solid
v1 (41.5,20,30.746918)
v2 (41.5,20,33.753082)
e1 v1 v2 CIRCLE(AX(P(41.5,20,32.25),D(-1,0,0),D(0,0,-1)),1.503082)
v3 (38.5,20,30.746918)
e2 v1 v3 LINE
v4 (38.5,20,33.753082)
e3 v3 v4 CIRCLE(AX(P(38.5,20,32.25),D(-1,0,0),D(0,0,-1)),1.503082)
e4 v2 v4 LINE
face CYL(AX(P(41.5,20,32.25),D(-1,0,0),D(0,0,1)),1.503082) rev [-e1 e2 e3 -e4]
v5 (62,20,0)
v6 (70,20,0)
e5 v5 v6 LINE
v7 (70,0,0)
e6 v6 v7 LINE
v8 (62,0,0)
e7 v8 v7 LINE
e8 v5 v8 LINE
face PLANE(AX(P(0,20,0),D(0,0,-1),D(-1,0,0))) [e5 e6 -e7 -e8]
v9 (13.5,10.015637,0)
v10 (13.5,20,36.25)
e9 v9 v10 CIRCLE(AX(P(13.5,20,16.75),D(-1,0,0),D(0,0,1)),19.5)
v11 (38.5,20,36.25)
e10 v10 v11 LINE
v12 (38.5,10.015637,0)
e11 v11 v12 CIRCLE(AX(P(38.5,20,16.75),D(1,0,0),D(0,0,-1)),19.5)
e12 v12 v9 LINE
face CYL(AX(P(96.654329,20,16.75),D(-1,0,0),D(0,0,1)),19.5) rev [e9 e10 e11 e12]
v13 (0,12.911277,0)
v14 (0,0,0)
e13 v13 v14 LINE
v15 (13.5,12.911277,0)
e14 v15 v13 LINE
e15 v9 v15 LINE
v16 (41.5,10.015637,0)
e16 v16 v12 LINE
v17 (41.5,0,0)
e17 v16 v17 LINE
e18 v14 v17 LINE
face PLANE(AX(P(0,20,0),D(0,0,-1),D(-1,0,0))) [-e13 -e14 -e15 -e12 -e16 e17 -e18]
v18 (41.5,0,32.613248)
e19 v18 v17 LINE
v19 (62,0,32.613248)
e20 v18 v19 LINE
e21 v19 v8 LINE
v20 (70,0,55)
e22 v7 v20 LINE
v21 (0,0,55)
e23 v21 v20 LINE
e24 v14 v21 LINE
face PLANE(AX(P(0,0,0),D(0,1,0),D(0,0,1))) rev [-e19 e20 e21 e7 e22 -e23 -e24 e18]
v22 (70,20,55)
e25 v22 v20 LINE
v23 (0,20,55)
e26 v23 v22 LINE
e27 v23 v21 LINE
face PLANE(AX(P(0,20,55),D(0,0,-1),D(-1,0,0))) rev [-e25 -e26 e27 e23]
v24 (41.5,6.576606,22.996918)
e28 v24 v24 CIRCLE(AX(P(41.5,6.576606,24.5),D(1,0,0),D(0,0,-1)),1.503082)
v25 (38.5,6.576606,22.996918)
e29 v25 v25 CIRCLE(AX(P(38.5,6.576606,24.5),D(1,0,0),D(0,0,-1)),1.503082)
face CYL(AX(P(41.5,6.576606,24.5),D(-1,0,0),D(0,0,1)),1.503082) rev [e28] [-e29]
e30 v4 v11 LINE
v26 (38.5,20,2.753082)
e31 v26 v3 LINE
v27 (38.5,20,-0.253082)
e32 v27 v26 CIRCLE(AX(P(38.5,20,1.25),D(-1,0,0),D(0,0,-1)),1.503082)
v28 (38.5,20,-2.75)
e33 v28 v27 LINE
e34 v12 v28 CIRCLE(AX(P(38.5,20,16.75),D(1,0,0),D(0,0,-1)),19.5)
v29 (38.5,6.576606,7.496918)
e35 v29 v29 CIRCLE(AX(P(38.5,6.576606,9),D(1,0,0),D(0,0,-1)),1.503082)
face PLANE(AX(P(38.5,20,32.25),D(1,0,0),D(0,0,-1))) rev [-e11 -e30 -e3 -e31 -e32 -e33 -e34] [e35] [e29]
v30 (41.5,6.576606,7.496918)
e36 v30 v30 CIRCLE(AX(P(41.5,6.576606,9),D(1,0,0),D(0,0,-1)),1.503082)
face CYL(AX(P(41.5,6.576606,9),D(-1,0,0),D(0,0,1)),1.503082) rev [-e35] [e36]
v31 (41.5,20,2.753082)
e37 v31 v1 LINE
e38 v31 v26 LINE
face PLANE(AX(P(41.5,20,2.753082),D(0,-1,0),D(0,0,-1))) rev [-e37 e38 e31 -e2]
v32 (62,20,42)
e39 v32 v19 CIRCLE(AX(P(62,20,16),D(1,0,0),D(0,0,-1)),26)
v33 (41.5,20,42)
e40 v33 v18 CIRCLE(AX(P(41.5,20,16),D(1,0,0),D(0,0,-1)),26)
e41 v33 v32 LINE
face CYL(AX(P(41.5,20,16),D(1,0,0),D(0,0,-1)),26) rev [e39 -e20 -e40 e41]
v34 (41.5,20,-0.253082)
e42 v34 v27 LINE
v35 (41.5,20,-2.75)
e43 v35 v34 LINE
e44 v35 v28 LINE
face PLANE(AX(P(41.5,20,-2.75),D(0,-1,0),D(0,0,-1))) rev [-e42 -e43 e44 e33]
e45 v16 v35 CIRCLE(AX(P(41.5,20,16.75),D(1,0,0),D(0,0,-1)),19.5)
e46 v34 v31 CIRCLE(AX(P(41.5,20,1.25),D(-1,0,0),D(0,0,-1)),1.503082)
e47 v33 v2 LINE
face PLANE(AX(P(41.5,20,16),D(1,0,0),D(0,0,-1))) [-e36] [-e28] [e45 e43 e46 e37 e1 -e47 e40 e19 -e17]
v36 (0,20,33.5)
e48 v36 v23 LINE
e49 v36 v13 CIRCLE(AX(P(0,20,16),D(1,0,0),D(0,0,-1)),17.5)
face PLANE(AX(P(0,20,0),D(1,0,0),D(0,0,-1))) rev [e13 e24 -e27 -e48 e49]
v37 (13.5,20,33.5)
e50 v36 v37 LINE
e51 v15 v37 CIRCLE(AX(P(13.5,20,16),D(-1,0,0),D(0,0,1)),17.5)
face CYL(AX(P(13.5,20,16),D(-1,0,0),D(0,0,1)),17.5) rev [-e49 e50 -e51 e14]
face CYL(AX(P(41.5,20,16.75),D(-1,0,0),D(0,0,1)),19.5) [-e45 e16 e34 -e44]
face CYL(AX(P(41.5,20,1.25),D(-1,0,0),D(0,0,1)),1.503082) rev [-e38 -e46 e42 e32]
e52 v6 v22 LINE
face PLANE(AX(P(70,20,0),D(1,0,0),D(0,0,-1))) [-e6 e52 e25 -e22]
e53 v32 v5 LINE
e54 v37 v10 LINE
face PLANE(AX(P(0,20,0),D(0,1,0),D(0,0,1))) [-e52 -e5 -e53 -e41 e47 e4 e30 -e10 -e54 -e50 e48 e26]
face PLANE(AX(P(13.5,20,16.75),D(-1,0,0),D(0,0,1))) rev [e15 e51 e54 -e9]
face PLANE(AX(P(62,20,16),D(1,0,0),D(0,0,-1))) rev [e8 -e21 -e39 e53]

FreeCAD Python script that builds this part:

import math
import FreeCAD as App
import Part
import Sketcher
from FreeCAD import Vector
Q = App.Units.Quantity

doc = App.newDocument("Part")
params = doc.addObject("Spreadsheet::Sheet", "Params")
for row, (alias, value) in enumerate([
    ("sketch1_width", "70 mm"),
    ("sketch1_height", "55 mm"),
    ("pad1_length", "20 mm"),
    ("sketch2_diameter", "52 mm"),
    ("pocket1_length", "20.5 mm"),
    ("sketch3_diameter", "35 mm"),
    ("pocket2_length", "13.5 mm"),
    ("sketch4_diameter", "39 mm"),
    ("pocket3_length", "28 mm"),
    ("sketch5_radius", "19.5 mm"),
    ("pad2_length", "3 mm"),
], start=1):
    params.set(f"A{row}", alias)
    params.set(f"B{row}", "=" + value)
    params.setAlias(f"B{row}", alias)

body = doc.addObject("PartDesign::Body", "Body")

# Sketch on XZ plane
sketch1 = body.newObject("Sketcher::SketchObject", "Sketch")
sketch1.AttachmentSupport = (doc.getObject("XZ_Plane"), [""])
sketch1.MapMode = "FlatFace"
sketch1.addGeometry([
    Part.LineSegment(Vector(0, 0, 0), Vector(0, 55, 0)),
    Part.LineSegment(Vector(0, 55, 0), Vector(70, 55, 0)),
    Part.LineSegment(Vector(70, 55, 0), Vector(70, 0, 0)),
    Part.LineSegment(Vector(70, 0, 0), Vector(0, 0, 0)),
], False)
sketch1.addConstraint([
    Sketcher.Constraint("Coincident", 0, 2, 1, 1),
    Sketcher.Constraint("Coincident", 1, 2, 2, 1),
    Sketcher.Constraint("Coincident", 2, 2, 3, 1),
    Sketcher.Constraint("Coincident", 3, 2, 0, 1),
    Sketcher.Constraint("Vertical", 0),
    Sketcher.Constraint("Horizontal", 1),
    Sketcher.Constraint("Vertical", 2),
    Sketcher.Constraint("Horizontal", 3),
    Sketcher.Constraint("Coincident", 3, 2, -1, 1),
    Sketcher.Constraint("DistanceX", 1, 1, 1, 2, Q("70 mm")),
    Sketcher.Constraint("DistanceY", 0, 1, 0, 2, Q("55 mm")),
])
sketch1.setExpression("Constraints[9]", "Params.sketch1_width")
sketch1.setExpression("Constraints[10]", "Params.sketch1_height")
pad1 = body.newObject("PartDesign::Pad", "Pad")
pad1.Profile = sketch1
pad1.setExpression("Length", "Params.pad1_length")
pad1.Reversed = True

# Sketch on YZ plane
sketch2 = body.newObject("Sketcher::SketchObject", "Sketch001")
sketch2.AttachmentSupport = (doc.getObject("YZ_Plane"), [""])
sketch2.MapMode = "FlatFace"
sketch2.AttachmentOffset = App.Placement(Vector(0, 0, 62), App.Rotation())
sketch2.addGeometry(Part.Circle(Vector(20, 16, 0), Vector(0, 0, 1), 26), False)
sketch2.addConstraint([
    Sketcher.Constraint("Diameter", 0, Q("52 mm")),
    Sketcher.Constraint("DistanceX", -1, 1, 0, 3, Q("20 mm")),
    Sketcher.Constraint("DistanceY", -1, 1, 0, 3, Q("16 mm")),
])
sketch2.setExpression("Constraints[0]", "Params.sketch2_diameter")
pocket1 = body.newObject("PartDesign::Pocket", "Pocket")
pocket1.Profile = sketch2
pocket1.setExpression("Length", "Params.pocket1_length")

# Sketch on YZ plane
sketch3 = body.newObject("Sketcher::SketchObject", "Sketch002")
sketch3.AttachmentSupport = (doc.getObject("YZ_Plane"), [""])
sketch3.MapMode = "FlatFace"
sketch3.addGeometry(Part.Circle(Vector(20, 16, 0), Vector(0, 0, 1), 18), False)
sketch3.addConstraint([
    Sketcher.Constraint("Diameter", 0, Q("35 mm")),
    Sketcher.Constraint("DistanceX", -1, 1, 0, 3, Q("20 mm")),
    Sketcher.Constraint("DistanceY", -1, 1, 0, 3, Q("16 mm")),
])
sketch3.setExpression("Constraints[0]", "Params.sketch3_diameter")
pocket2 = body.newObject("PartDesign::Pocket", "Pocket001")
pocket2.Profile = sketch3
pocket2.setExpression("Length", "Params.pocket2_length")
pocket2.Reversed = True

# Sketch on YZ plane
sketch4 = body.newObject("Sketcher::SketchObject", "Sketch003")
sketch4.AttachmentSupport = (doc.getObject("YZ_Plane"), [""])
sketch4.MapMode = "FlatFace"
sketch4.AttachmentOffset = App.Placement(Vector(0, 0, 13.5), App.Rotation())
sketch4.addGeometry(Part.Circle(Vector(20, 17, 0), Vector(0, 0, 1), 20), False)
sketch4.addConstraint([
    Sketcher.Constraint("Diameter", 0, Q("39 mm")),
    Sketcher.Constraint("DistanceX", -1, 1, 0, 3, Q("20 mm")),
    Sketcher.Constraint("DistanceY", -1, 1, 0, 3, Q("16.75 mm")),
])
sketch4.setExpression("Constraints[0]", "Params.sketch4_diameter")
pocket3 = body.newObject("PartDesign::Pocket", "Pocket002")
pocket3.Profile = sketch4
pocket3.setExpression("Length", "Params.pocket3_length")
pocket3.Reversed = True

# Sketch on YZ plane
sketch5 = body.newObject("Sketcher::SketchObject", "Sketch004")
sketch5.AttachmentSupport = (doc.getObject("YZ_Plane"), [""])
sketch5.MapMode = "FlatFace"
sketch5.AttachmentOffset = App.Placement(Vector(0, 0, 38.5), App.Rotation())
sketch5.addGeometry([
    Part.LineSegment(Vector(20, -2.8, 0), Vector(20, -0.3, 0)),  # 0
    Part.ArcOfCircle(Part.Circle(Vector(20, 1.2, 0), Vector(0, 0, 1), 1.5), math.radians(90), math.radians(270)),  # 1
    Part.LineSegment(Vector(20, 2.8, 0), Vector(20, 30.7, 0)),  # 2
    Part.ArcOfCircle(Part.Circle(Vector(20, 32.2, 0), Vector(0, 0, 1), 1.5), math.radians(90), math.radians(270)),  # 3
    Part.LineSegment(Vector(20, 33.8, 0), Vector(20, 36.2, 0)),  # 4
    Part.ArcOfCircle(Part.Circle(Vector(20, 16.8, 0), Vector(0, 0, 1), 19.5), math.radians(90), math.radians(270)),  # 5
    Part.Circle(Vector(6.6, 24.5, 0), Vector(0, 0, 1), 1.5),  # 6
    Part.Circle(Vector(6.6, 9, 0), Vector(0, 0, 1), 1.5),  # 7
], False)
sketch5.addConstraint([
    Sketcher.Constraint("Coincident", 0, 2, 1, 2),
    Sketcher.Constraint("Coincident", 1, 1, 2, 1),
    Sketcher.Constraint("Coincident", 2, 2, 3, 2),
    Sketcher.Constraint("Coincident", 3, 1, 4, 1),
    Sketcher.Constraint("Coincident", 4, 2, 5, 1),
    Sketcher.Constraint("Coincident", 5, 2, 0, 1),
    Sketcher.Constraint("Vertical", 0),
    Sketcher.Constraint("Vertical", 2),
    Sketcher.Constraint("Vertical", 4),
    Sketcher.Constraint("Equal", 1, 3),
    Sketcher.Constraint("Equal", 3, 6),
    Sketcher.Constraint("Equal", 6, 7),
    Sketcher.Constraint("Vertical", 1, 3, 3, 3),
    Sketcher.Constraint("Vertical", 3, 3, 5, 3),
    Sketcher.Constraint("Vertical", 6, 3, 7, 3),
    Sketcher.Constraint("Vertical", 5, 3, 0, 2),
    Sketcher.Constraint("Vertical", 0, 2, 1, 1),
    Sketcher.Constraint("Vertical", 2, 2, 3, 1),
    Sketcher.Constraint("Equal", 0, 4),
    Sketcher.Constraint("Radius", 5, Q("19.5 mm")),
    Sketcher.Constraint("DistanceX", -1, 1, 1, 3, Q("20 mm")),
    Sketcher.Constraint("DistanceY", -1, 1, 7, 3, Q("9 mm")),
    Sketcher.Constraint("DistanceY", 1, 3, 3, 3, Q("31 mm")),
    Sketcher.Constraint("DistanceY", -1, 1, 6, 3, Q("24.5 mm")),
    Sketcher.Constraint("DistanceY", -1, 1, 1, 3, Q("1.25 mm")),
    Sketcher.Constraint("Radius", 1, Q("1.503082 mm")),
    Sketcher.Constraint("DistanceX", -1, 1, 6, 3, Q("6.576606 mm")),
])
sketch5.setExpression("Constraints[19]", "Params.sketch5_radius")
pad2 = body.newObject("PartDesign::Pad", "Pad001")
pad2.Profile = sketch5
pad2.setExpression("Length", "Params.pad2_length")

doc.recompute()
